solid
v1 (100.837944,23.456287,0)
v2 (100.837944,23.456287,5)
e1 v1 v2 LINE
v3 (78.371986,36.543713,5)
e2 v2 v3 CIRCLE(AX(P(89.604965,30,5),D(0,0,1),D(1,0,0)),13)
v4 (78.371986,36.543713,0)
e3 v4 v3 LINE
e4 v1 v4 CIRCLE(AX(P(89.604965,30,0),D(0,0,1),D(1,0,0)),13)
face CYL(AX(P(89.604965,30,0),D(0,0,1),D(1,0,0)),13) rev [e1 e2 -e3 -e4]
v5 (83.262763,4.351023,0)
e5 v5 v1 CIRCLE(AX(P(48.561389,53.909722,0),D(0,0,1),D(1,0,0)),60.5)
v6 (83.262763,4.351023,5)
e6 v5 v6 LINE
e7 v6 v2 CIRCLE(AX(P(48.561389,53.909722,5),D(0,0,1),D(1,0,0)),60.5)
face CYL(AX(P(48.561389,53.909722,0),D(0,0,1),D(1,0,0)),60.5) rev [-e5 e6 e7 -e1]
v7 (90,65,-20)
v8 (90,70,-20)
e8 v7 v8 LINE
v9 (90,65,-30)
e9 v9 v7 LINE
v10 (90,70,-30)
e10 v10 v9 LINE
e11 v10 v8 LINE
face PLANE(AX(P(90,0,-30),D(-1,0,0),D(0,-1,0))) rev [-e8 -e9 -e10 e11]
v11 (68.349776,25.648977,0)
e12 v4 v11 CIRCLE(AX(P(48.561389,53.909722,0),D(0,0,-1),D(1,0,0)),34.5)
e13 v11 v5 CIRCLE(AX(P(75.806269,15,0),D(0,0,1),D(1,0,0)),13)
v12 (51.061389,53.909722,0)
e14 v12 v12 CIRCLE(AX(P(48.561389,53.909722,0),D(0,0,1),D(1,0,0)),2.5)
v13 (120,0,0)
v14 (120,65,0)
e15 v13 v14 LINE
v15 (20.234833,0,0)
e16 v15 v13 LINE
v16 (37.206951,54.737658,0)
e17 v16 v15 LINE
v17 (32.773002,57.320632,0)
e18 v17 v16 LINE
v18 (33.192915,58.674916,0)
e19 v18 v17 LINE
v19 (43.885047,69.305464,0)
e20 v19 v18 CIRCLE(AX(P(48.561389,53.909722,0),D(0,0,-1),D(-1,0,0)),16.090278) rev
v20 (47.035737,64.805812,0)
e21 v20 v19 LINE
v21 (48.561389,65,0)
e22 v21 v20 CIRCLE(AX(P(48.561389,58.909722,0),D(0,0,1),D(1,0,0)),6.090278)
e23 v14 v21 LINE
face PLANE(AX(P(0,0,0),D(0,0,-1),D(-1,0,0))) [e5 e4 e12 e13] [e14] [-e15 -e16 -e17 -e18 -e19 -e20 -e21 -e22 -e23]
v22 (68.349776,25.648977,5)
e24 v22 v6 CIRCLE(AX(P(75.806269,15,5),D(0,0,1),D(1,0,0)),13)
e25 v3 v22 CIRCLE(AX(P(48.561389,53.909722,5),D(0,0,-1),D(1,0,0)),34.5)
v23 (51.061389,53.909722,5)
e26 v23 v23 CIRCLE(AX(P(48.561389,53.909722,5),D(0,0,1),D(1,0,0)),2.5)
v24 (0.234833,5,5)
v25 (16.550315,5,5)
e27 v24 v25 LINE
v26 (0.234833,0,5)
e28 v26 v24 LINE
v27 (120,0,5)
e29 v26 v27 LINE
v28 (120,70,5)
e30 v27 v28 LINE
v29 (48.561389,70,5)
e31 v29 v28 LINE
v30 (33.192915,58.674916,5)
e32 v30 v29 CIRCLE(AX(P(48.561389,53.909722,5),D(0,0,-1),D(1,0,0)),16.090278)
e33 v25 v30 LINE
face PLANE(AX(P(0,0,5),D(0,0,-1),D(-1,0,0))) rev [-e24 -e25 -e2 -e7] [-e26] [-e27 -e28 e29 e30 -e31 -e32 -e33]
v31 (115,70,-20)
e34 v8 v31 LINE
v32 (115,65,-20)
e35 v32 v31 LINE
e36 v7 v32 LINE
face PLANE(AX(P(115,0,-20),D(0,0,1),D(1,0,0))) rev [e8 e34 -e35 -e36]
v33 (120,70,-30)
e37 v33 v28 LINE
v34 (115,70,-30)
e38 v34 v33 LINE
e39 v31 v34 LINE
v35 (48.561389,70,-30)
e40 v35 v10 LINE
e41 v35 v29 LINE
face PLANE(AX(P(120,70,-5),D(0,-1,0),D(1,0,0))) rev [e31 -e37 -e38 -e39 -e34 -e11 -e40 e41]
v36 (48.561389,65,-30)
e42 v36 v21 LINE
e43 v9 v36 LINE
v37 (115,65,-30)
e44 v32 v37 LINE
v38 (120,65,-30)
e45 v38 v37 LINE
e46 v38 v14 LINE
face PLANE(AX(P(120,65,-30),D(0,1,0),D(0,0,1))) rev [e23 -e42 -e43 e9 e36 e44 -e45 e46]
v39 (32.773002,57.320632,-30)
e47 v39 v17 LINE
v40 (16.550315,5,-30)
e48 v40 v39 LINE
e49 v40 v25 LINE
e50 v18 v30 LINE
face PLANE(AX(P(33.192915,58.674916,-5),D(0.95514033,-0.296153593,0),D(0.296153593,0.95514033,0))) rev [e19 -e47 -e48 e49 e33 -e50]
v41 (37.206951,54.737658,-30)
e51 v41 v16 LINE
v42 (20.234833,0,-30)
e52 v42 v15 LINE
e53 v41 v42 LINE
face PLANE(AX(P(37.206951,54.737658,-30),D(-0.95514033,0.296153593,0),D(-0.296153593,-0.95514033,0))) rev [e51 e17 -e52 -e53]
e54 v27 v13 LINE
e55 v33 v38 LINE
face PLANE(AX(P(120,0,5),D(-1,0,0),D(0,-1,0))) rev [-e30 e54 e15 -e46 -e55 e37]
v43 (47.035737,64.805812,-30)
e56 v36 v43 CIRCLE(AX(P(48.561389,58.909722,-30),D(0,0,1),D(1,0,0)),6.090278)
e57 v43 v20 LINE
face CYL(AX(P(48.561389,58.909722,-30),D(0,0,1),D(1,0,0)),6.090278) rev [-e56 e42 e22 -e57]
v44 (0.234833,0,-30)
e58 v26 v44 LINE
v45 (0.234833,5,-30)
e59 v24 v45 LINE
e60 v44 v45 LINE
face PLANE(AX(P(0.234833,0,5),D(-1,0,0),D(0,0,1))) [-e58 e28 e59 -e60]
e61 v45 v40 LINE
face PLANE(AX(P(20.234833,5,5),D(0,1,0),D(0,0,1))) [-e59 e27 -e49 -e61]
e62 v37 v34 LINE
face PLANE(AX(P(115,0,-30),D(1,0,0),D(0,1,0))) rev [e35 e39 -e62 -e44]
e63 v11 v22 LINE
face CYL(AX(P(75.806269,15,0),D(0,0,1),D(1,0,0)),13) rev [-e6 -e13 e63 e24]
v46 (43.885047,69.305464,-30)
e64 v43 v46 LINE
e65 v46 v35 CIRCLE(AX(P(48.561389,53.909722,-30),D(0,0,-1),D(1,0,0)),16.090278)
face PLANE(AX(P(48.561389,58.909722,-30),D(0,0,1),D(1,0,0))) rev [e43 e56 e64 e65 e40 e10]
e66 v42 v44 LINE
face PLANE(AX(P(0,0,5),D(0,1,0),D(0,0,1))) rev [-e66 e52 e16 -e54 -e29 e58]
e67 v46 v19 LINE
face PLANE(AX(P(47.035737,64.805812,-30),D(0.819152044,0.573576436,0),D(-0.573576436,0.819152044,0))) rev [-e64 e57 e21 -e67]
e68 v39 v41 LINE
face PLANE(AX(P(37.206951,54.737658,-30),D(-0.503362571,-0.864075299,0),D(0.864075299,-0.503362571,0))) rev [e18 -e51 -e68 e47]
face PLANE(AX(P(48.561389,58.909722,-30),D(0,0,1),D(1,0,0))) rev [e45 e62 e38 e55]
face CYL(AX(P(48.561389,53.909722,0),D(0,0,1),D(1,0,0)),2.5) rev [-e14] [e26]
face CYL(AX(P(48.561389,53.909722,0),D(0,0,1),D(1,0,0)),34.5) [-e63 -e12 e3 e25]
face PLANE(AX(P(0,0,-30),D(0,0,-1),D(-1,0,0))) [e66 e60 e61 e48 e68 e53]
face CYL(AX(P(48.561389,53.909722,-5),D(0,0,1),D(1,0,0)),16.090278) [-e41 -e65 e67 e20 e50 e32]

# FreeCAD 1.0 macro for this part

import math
import FreeCAD as App
import Part
import Sketcher

V = App.Vector
Q = App.Units.Quantity

doc = App.newDocument("Part")
body = doc.addObject("PartDesign::Body", "Body")

sketch1 = doc.addObject("Sketcher::SketchObject", "Sketch")
body.addObject(sketch1)
sketch1.AttachmentSupport = (doc.XY_Plane, [""])
sketch1.MapMode = "FlatFace"
sketch1.addGeometry([
    Part.LineSegment(V(0, 100, 0), V(0, 0, 0)),
    Part.LineSegment(V(0, 0, 0), V(120, 0, 0)),
    Part.LineSegment(V(120, 0, 0), V(120, 100, 0)),
    Part.LineSegment(V(120, 100, 0), V(0, 100, 0)),
], False)
sketch1.addConstraint([
    Sketcher.Constraint("Coincident", 0, 2, 1, 1),
    Sketcher.Constraint("Coincident", 1, 2, 2, 1),
    Sketcher.Constraint("Coincident", 2, 2, 3, 1),
    Sketcher.Constraint("Coincident", 3, 2, 0, 1),
    Sketcher.Constraint("Vertical", 0),
    Sketcher.Constraint("Horizontal", 1),
    Sketcher.Constraint("Vertical", 2),
    Sketcher.Constraint("Horizontal", 3),
    Sketcher.Constraint("Coincident", 0, 2, -1, 1),
    Sketcher.Constraint("DistanceX", 1, 1, 1, 2, Q("120 mm")),
    Sketcher.Constraint("DistanceY", 0, 2, 0, 1, Q("100 mm")),
])
pad1 = doc.addObject("PartDesign::Pad", "Pad")
body.addObject(pad1)
pad1.Profile = sketch1
pad1.Length = 5

sketch2 = doc.addObject("Sketcher::SketchObject", "Sketch001")
body.addObject(sketch2)
sketch2.AttachmentSupport = (doc.XY_Plane, [""])
sketch2.MapMode = "FlatFace"
sketch2.AttachmentOffset = App.Placement(V(0, 0, 5), App.Rotation())
sketch2.addGeometry([
    Part.Circle(V(48.6, 53.9, 0), V(0, 0, 1), 2.5),
    Part.ArcOfCircle(Part.Circle(V(48.6, 53.9, 0), V(0, 0, 1), 60.5), math.radians(-55), math.radians(-30)),
    Part.ArcOfCircle(Part.Circle(V(89.6, 30, 0), V(0, 0, 1), 13), math.radians(-30), math.radians(150)),
    Part.ArcOfCircle(Part.Circle(V(48.6, 53.9, 0), V(0, 0, 1), 34.5), math.radians(-55), math.radians(-30)),
    Part.ArcOfCircle(Part.Circle(V(75.8, 15, 0), V(0, 0, 1), 13), math.radians(125), math.radians(305)),
], False)
sketch2.addConstraint([
    Sketcher.Constraint("Tangent", 1, 2, 2, 1),
    Sketcher.Constraint("Tangent", 2, 2, 3, 2),
    Sketcher.Constraint("Tangent", 3, 1, 4, 1),
    Sketcher.Constraint("Tangent", 4, 2, 1, 1),
    Sketcher.Constraint("Coincident", 1, 3, 0, 3),
    Sketcher.Constraint("Coincident", 3, 3, 0, 3),
    Sketcher.Constraint("Diameter", 0, Q("5 mm")),
    Sketcher.Constraint("Radius", 2, Q("13 mm")),
    Sketcher.Constraint("Radius", 1, Q("60.5 mm")),
    Sketcher.Constraint("DistanceY", -1, 1, 2, 3, Q("30 mm")),
    Sketcher.Constraint("DistanceY", -1, 1, 4, 3, Q("15 mm")),
    Sketcher.Constraint("DistanceX", -1, 1, 0, 3, Q("48.561389 mm")),
    Sketcher.Constraint("DistanceX", -1, 1, 4, 3, Q("75.806269 mm")),
])
pocket1 = doc.addObject("PartDesign::Pocket", "Pocket")
body.addObject(pocket1)
pocket1.Profile = sketch2
pocket1.Type = "ThroughAll"

sketch3 = doc.addObject("Sketcher::SketchObject", "Sketch002")
body.addObject(sketch3)
sketch3.AttachmentSupport = (doc.XY_Plane, [""])
sketch3.MapMode = "FlatFace"
sketch3.AttachmentOffset = App.Placement(V(0, 0, 5), App.Rotation())
sketch3.addGeometry([
    Part.LineSegment(V(49, 70, 0), V(120, 70, 0)),
    Part.LineSegment(V(120, 70, 0), V(120, 100, 0)),
    Part.LineSegment(V(120, 100, 0), V(0, 100, 0)),
    Part.LineSegment(V(0, 100, 0), V(0, 0, 0)),
    Part.LineSegment(V(0, 0, 0), V(15, 0, 0)),
    Part.LineSegment(V(15, 0, 0), V(33, 59, 0)),
    Part.ArcOfCircle(Part.Circle(V(49, 54, 0), V(0, 0, 1), 16), math.radians(90), math.radians(163)),
], False)
sketch3.addConstraint([
    Sketcher.Constraint("Coincident", 0, 2, 1, 1),
    Sketcher.Constraint("Coincident", 1, 2, 2, 1),
    Sketcher.Constraint("Coincident", 2, 2, 3, 1),
    Sketcher.Constraint("Coincident", 3, 2, 4, 1),
    Sketcher.Constraint("Coincident", 4, 2, 5, 1),
    Sketcher.Constraint("Tangent", 5, 2, 6, 2),
    Sketcher.Constraint("Tangent", 6, 1, 0, 1),
    Sketcher.Constraint("Horizontal", 0),
    Sketcher.Constraint("Vertical", 1),
    Sketcher.Constraint("Horizontal", 2),
    Sketcher.Constraint("Vertical", 3),
    Sketcher.Constraint("Horizontal", 4),
    Sketcher.Constraint("Coincident", 3, 2, -1, 1),
    Sketcher.Constraint("DistanceX", 2, 2, 2, 1, Q("120 mm")),
    Sketcher.Constraint("DistanceX", 4, 1, 4, 2, Q("15 mm")),
    Sketcher.Constraint("DistanceY", 1, 1, 1, 2, Q("30 mm")),
    Sketcher.Constraint("DistanceY", 3, 2, 3, 1, Q("100 mm")),
    Sketcher.Constraint("Radius", 6, Q("16.090278 mm")),
    Sketcher.Constraint("DistanceX", 0, 1, 0, 2, Q("71.438611 mm")),
])
pocket2 = doc.addObject("PartDesign::Pocket", "Pocket001")
body.addObject(pocket2)
pocket2.Profile = sketch3
pocket2.Length = 10

sketch4 = doc.addObject("Sketcher::SketchObject", "Sketch003")
body.addObject(sketch4)
sketch4.AttachmentSupport = (doc.XY_Plane, [""])
sketch4.MapMode = "FlatFace"
sketch4.addGeometry([
    Part.LineSegment(V(15, 0, 0), V(32.8, 57.3, 0)),
    Part.LineSegment(V(32.8, 57.3, 0), V(37.2, 54.7, 0)),
    Part.LineSegment(V(37.2, 54.7, 0), V(20.2, 0, 0)),
    Part.LineSegment(V(20.2, 0, 0), V(15, 0, 0)),
    Part.LineSegment(V(48.6, 70, 0), V(120, 70, 0)),
    Part.LineSegment(V(120, 70, 0), V(120, 65, 0)),
    Part.LineSegment(V(120, 65, 0), V(48.6, 65, 0)),
    Part.ArcOfCircle(Part.Circle(V(48.6, 58.9, 0), V(0, 0, 1), 6.1), math.radians(90), math.radians(104.51)),
    Part.LineSegment(V(47, 64.8, 0), V(43.9, 69.3, 0)),
    Part.ArcOfCircle(Part.Circle(V(48.6, 53.9, 0), V(0, 0, 1), 16.1), math.radians(90), math.radians(106.9)),
], False)
sketch4.addConstraint([
    Sketcher.Constraint("Coincident", 0, 2, 1, 1),
    Sketcher.Constraint("Coincident", 1, 2, 2, 1),
    Sketcher.Constraint("Coincident", 2, 2, 3, 1),
    Sketcher.Constraint("Coincident", 3, 2, 0, 1),
    Sketcher.Constraint("Coincident", 4, 2, 5, 1),
    Sketcher.Constraint("Coincident", 5, 2, 6, 1),
    Sketcher.Constraint("Tangent", 6, 2, 7, 1),
    Sketcher.Constraint("Coincident", 7, 2, 8, 1),
    Sketcher.Constraint("Coincident", 8, 2, 9, 2),
    Sketcher.Constraint("Tangent", 9, 1, 4, 1),
    Sketcher.Constraint("Horizontal", 3),
    Sketcher.Constraint("Horizontal", 4),
    Sketcher.Constraint("Vertical", 5),
    Sketcher.Constraint("Horizontal", 6),
    Sketcher.Constraint("PointOnObject", 2, 2, -1),
    Sketcher.Constraint("Parallel", 0, 2),
    Sketcher.Constraint("Vertical", 7, 3, 9, 3),
    Sketcher.Constraint("DistanceY", 5, 2, 5, 1, Q("5 mm")),
    Sketcher.Constraint("Angle", 8, Q("125 deg")),
    Sketcher.Constraint("DistanceX", -1, 1, 3, 2, Q("15 mm")),
    Sketcher.Constraint("DistanceX", -1, 1, 4, 2, Q("120 mm")),
    Sketcher.Constraint("DistanceY", -1, 1, 4, 2, Q("70 mm")),
    Sketcher.Constraint("DistanceY", 9, 3, 7, 3, Q("5 mm")),
    Sketcher.Constraint("Radius", 7, Q("6.090278 mm")),
    Sketcher.Constraint("Distance", 2, Q("57.308499 mm")),
    Sketcher.Constraint("DistanceX", 4, 1, 4, 2, Q("71.438611 mm")),
    Sketcher.Constraint("Distance", 8, Q("5.493061 mm")),
    Sketcher.Constraint("DistanceX", 3, 2, 3, 1, Q("5.234833 mm")),
    Sketcher.Constraint("DistanceY", -1, 1, 0, 2, Q("57.320632 mm")),
    Sketcher.Constraint("DistanceX", -1, 1, 1, 2, Q("37.206951 mm")),
])
pad2 = doc.addObject("PartDesign::Pad", "Pad001")
body.addObject(pad2)
pad2.Profile = sketch4
pad2.Length = 30
pad2.Reversed = True

sketch5 = doc.addObject("Sketcher::SketchObject", "Sketch004")
body.addObject(sketch5)
sketch5.AttachmentSupport = (doc.XY_Plane, [""])
sketch5.MapMode = "FlatFace"
sketch5.AttachmentOffset = App.Placement(V(0, 0, -30), App.Rotation())
sketch5.addGeometry([
    Part.LineSegment(V(20, 5, 0), V(20, 0, 0)),
    Part.LineSegment(V(20, 0, 0), V(0, 0, 0)),
    Part.LineSegment(V(0, 0, 0), V(0, 5, 0)),
    Part.LineSegment(V(0, 5, 0), V(20, 5, 0)),
], False)
sketch5.addConstraint([
    Sketcher.Constraint("Coincident", 0, 2, 1, 1),
    Sketcher.Constraint("Coincident", 1, 2, 2, 1),
    Sketcher.Constraint("Coincident", 2, 2, 3, 1),
    Sketcher.Constraint("Coincident", 3, 2, 0, 1),
    Sketcher.Constraint("Vertical", 0),
    Sketcher.Constraint("Horizontal", 1),
    Sketcher.Constraint("Vertical", 2),
    Sketcher.Constraint("Horizontal", 3),
    Sketcher.Constraint("PointOnObject", 0, 2, -1),
    Sketcher.Constraint("DistanceX", 1, 2, 1, 1, Q("20 mm")),
    Sketcher.Constraint("DistanceY", 0, 2, 0, 1, Q("5 mm")),
    Sketcher.Constraint("DistanceX", -1, 1, 0, 2, Q("20.234833 mm")),
])
pad3 = doc.addObject("PartDesign::Pad", "Pad002")
body.addObject(pad3)
pad3.Profile = sketch5
pad3.Length = 35

sketch6 = doc.addObject("Sketcher::SketchObject", "Sketch005")
body.addObject(sketch6)
sketch6.AttachmentSupport = (doc.XZ_Plane, [""])
sketch6.MapMode = "FlatFace"
sketch6.AttachmentOffset = App.Placement(V(0, 0, -70), App.Rotation())
sketch6.addGeometry([
    Part.LineSegment(V(90, -30, 0), V(90, -20, 0)),
    Part.LineSegment(V(90, -20, 0), V(115, -20, 0)),
    Part.LineSegment(V(115, -20, 0), V(115, -30, 0)),
    Part.LineSegment(V(115, -30, 0), V(90, -30, 0)),
], False)
sketch6.addConstraint([
    Sketcher.Constraint("Coincident", 0, 2, 1, 1),
    Sketcher.Constraint("Coincident", 1, 2, 2, 1),
    Sketcher.Constraint("Coincident", 2, 2, 3, 1),
    Sketcher.Constraint("Coincident", 3, 2, 0, 1),
    Sketcher.Constraint("Vertical", 0),
    Sketcher.Constraint("Horizontal", 1),
    Sketcher.Constraint("Vertical", 2),
    Sketcher.Constraint("Horizontal", 3),
    Sketcher.Constraint("DistanceX", 1, 1, 1, 2, Q("25 mm")),
    Sketcher.Constraint("DistanceY", 0, 1, 0, 2, Q("10 mm")),
    Sketcher.Constraint("DistanceX", -1, 1, 0, 2, Q("90 mm")),
    Sketcher.Constraint("DistanceY", 0, 2, -1, 1, Q("20 mm")),
])
pocket3 = doc.addObject("PartDesign::Pocket", "Pocket002")
body.addObject(pocket3)
pocket3.Profile = sketch6
pocket3.Type = "ThroughAll"
pocket3.Reversed = True

doc.recompute()
